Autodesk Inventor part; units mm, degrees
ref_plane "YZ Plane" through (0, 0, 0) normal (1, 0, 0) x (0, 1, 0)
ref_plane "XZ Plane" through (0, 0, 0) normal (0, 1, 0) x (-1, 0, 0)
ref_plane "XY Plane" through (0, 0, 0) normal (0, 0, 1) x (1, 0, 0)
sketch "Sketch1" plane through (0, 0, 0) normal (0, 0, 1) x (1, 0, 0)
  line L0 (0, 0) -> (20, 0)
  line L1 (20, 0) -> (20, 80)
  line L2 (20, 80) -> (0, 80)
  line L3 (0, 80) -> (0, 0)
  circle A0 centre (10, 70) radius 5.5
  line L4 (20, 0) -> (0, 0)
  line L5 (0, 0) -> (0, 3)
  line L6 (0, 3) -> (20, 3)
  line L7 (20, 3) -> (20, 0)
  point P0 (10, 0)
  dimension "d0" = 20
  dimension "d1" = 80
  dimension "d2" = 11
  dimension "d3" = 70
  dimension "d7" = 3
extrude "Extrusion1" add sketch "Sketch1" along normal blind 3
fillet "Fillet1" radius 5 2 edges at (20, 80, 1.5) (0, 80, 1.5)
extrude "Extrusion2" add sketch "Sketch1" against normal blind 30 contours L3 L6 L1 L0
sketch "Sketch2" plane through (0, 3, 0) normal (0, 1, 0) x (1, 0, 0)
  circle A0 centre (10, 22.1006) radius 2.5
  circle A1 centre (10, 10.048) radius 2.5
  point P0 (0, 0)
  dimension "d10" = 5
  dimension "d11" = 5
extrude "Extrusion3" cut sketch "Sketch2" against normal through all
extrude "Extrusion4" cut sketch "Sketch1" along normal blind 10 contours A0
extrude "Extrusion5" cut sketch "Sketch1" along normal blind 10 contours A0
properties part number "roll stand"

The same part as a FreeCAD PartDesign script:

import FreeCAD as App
import Part
import Sketcher
from FreeCAD import Vector
Q = App.Units.Quantity


def edges_at(feature, points):
    """Names of the edges that pass closest to the given points."""
    edges = feature.Shape.Edges
    near = lambda p: min(range(len(edges)), key=lambda i: edges[i].distToShape(Part.Vertex(*p))[0])
    return sorted({f"Edge{near(p) + 1}" for p in points})


def add_polygon(sketch, points):
    """Adds a closed chain of lines whose ends are joined by coincident constraints."""
    first, n = sketch.GeometryCount, len(points)
    for a, b in zip(points, points[1:] + points[:1]):
        sketch.addGeometry(Part.LineSegment(App.Vector(*a, 0), App.Vector(*b, 0)), False)
    for i in range(n):
        sketch.addConstraint(Sketcher.Constraint("Coincident", first + i, 2, first + (i + 1) % n, 1))

doc = App.newDocument("Part")
body = doc.addObject("PartDesign::Body", "Body")

sketch1 = body.newObject("Sketcher::SketchObject", "Sketch")
sketch1.AttachmentSupport = (doc.getObject("XY_Plane"), [""])
sketch1.MapMode = "FlatFace"
add_polygon(sketch1, [(0, 0), (20, 0), (20, 80), (0, 80)])
sketch1.addGeometry(Part.Circle(Vector(10, 70, 0), Vector(0, 0, 1), 6), False)
sketch1.addConstraint([
    Sketcher.Constraint("Horizontal", 0),
    Sketcher.Constraint("Vertical", 1),
    Sketcher.Constraint("Horizontal", 2),
    Sketcher.Constraint("Vertical", 3),
    Sketcher.Constraint("Coincident", 3, 2, -1, 1),
    Sketcher.Constraint("Diameter", 4, Q("11 mm")),
    Sketcher.Constraint("DistanceX", 0, 1, 0, 2, Q("20 mm")),
    Sketcher.Constraint("DistanceY", 1, 1, 1, 2, Q("80 mm")),
    Sketcher.Constraint("DistanceY", -1, 1, 4, 3, Q("70 mm")),
    Sketcher.Constraint("DistanceX", -1, 1, 4, 3, Q("10 mm")),
])
pad1 = body.newObject("PartDesign::Pad", "Pad")
pad1.Profile = sketch1
pad1.Length = 3
doc.recompute()

fillet = body.newObject("PartDesign::Fillet", "Fillet")
fillet.Base = (pad1, edges_at(pad1, [(20, 80, 1.5), (0, 80, 1.5)]))
fillet.Radius = 5

sketch2 = body.newObject("Sketcher::SketchObject", "Sketch001")
sketch2.AttachmentSupport = (doc.getObject("XY_Plane"), [""])
sketch2.MapMode = "FlatFace"
add_polygon(sketch2, [(0, 3), (0, 0), (20, 0), (20, 3)])
sketch2.addConstraint([
    Sketcher.Constraint("Vertical", 0),
    Sketcher.Constraint("Horizontal", 1),
    Sketcher.Constraint("Vertical", 2),
    Sketcher.Constraint("Horizontal", 3),
    Sketcher.Constraint("Coincident", 0, 2, -1, 1),
    Sketcher.Constraint("DistanceX", 1, 1, 1, 2, Q("20 mm")),
    Sketcher.Constraint("DistanceY", 0, 2, 0, 1, Q("3 mm")),
])
pad2 = body.newObject("PartDesign::Pad", "Pad001")
pad2.Profile = sketch2
pad2.Length = 30
pad2.Reversed = True

sketch3 = body.newObject("Sketcher::SketchObject", "Sketch002")
sketch3.AttachmentSupport = (doc.getObject("XZ_Plane"), [""])
sketch3.MapMode = "FlatFace"
sketch3.AttachmentOffset = App.Placement(Vector(0, 0, -3), App.Rotation())
sketch3.addGeometry([
    Part.Circle(Vector(10, -22.1, 0), Vector(0, 0, 1), 2.5),
    Part.Circle(Vector(10, -10, 0), Vector(0, 0, 1), 2.5),
], False)
sketch3.addConstraint([
    Sketcher.Constraint("Equal", 0, 1),
    Sketcher.Constraint("Vertical", 0, 3, 1, 3),
    Sketcher.Constraint("Diameter", 0, Q("5 mm")),
    Sketcher.Constraint("DistanceX", -1, 1, 0, 3, Q("10 mm")),
    Sketcher.Constraint("DistanceY", 1, 3, -1, 1, Q("10.048 mm")),
    Sketcher.Constraint("DistanceY", 0, 3, -1, 1, Q("22.1006 mm")),
])
pocket1 = body.newObject("PartDesign::Pocket", "Pocket")
pocket1.Profile = sketch3
pocket1.Type = "ThroughAll"
pocket1.Reversed = True

sketch4 = body.newObject("Sketcher::SketchObject", "Sketch003")
sketch4.AttachmentSupport = (doc.getObject("XY_Plane"), [""])
sketch4.MapMode = "FlatFace"
sketch4.addGeometry(Part.Circle(Vector(10, 70, 0), Vector(0, 0, 1), 6), False)
sketch4.addConstraint([
    Sketcher.Constraint("Diameter", 0, Q("11 mm")),
    Sketcher.Constraint("DistanceY", -1, 1, 0, 3, Q("70 mm")),
    Sketcher.Constraint("DistanceX", -1, 1, 0, 3, Q("10 mm")),
])
pocket2 = body.newObject("PartDesign::Pocket", "Pocket001")
pocket2.Profile = sketch4
pocket2.Length = 10
pocket2.Reversed = True

sketch5 = body.newObject("Sketcher::SketchObject", "Sketch004")
sketch5.AttachmentSupport = (doc.getObject("XY_Plane"), [""])
sketch5.MapMode = "FlatFace"
sketch5.addGeometry(Part.Circle(Vector(10, 70, 0), Vector(0, 0, 1), 6), False)
sketch5.addConstraint([
    Sketcher.Constraint("Diameter", 0, Q("11 mm")),
    Sketcher.Constraint("DistanceY", -1, 1, 0, 3, Q("70 mm")),
    Sketcher.Constraint("DistanceX", -1, 1, 0, 3, Q("10 mm")),
])
pocket3 = body.newObject("PartDesign::Pocket", "Pocket002")
pocket3.Profile = sketch5
pocket3.Length = 10
pocket3.Reversed = True

doc.recompute()
